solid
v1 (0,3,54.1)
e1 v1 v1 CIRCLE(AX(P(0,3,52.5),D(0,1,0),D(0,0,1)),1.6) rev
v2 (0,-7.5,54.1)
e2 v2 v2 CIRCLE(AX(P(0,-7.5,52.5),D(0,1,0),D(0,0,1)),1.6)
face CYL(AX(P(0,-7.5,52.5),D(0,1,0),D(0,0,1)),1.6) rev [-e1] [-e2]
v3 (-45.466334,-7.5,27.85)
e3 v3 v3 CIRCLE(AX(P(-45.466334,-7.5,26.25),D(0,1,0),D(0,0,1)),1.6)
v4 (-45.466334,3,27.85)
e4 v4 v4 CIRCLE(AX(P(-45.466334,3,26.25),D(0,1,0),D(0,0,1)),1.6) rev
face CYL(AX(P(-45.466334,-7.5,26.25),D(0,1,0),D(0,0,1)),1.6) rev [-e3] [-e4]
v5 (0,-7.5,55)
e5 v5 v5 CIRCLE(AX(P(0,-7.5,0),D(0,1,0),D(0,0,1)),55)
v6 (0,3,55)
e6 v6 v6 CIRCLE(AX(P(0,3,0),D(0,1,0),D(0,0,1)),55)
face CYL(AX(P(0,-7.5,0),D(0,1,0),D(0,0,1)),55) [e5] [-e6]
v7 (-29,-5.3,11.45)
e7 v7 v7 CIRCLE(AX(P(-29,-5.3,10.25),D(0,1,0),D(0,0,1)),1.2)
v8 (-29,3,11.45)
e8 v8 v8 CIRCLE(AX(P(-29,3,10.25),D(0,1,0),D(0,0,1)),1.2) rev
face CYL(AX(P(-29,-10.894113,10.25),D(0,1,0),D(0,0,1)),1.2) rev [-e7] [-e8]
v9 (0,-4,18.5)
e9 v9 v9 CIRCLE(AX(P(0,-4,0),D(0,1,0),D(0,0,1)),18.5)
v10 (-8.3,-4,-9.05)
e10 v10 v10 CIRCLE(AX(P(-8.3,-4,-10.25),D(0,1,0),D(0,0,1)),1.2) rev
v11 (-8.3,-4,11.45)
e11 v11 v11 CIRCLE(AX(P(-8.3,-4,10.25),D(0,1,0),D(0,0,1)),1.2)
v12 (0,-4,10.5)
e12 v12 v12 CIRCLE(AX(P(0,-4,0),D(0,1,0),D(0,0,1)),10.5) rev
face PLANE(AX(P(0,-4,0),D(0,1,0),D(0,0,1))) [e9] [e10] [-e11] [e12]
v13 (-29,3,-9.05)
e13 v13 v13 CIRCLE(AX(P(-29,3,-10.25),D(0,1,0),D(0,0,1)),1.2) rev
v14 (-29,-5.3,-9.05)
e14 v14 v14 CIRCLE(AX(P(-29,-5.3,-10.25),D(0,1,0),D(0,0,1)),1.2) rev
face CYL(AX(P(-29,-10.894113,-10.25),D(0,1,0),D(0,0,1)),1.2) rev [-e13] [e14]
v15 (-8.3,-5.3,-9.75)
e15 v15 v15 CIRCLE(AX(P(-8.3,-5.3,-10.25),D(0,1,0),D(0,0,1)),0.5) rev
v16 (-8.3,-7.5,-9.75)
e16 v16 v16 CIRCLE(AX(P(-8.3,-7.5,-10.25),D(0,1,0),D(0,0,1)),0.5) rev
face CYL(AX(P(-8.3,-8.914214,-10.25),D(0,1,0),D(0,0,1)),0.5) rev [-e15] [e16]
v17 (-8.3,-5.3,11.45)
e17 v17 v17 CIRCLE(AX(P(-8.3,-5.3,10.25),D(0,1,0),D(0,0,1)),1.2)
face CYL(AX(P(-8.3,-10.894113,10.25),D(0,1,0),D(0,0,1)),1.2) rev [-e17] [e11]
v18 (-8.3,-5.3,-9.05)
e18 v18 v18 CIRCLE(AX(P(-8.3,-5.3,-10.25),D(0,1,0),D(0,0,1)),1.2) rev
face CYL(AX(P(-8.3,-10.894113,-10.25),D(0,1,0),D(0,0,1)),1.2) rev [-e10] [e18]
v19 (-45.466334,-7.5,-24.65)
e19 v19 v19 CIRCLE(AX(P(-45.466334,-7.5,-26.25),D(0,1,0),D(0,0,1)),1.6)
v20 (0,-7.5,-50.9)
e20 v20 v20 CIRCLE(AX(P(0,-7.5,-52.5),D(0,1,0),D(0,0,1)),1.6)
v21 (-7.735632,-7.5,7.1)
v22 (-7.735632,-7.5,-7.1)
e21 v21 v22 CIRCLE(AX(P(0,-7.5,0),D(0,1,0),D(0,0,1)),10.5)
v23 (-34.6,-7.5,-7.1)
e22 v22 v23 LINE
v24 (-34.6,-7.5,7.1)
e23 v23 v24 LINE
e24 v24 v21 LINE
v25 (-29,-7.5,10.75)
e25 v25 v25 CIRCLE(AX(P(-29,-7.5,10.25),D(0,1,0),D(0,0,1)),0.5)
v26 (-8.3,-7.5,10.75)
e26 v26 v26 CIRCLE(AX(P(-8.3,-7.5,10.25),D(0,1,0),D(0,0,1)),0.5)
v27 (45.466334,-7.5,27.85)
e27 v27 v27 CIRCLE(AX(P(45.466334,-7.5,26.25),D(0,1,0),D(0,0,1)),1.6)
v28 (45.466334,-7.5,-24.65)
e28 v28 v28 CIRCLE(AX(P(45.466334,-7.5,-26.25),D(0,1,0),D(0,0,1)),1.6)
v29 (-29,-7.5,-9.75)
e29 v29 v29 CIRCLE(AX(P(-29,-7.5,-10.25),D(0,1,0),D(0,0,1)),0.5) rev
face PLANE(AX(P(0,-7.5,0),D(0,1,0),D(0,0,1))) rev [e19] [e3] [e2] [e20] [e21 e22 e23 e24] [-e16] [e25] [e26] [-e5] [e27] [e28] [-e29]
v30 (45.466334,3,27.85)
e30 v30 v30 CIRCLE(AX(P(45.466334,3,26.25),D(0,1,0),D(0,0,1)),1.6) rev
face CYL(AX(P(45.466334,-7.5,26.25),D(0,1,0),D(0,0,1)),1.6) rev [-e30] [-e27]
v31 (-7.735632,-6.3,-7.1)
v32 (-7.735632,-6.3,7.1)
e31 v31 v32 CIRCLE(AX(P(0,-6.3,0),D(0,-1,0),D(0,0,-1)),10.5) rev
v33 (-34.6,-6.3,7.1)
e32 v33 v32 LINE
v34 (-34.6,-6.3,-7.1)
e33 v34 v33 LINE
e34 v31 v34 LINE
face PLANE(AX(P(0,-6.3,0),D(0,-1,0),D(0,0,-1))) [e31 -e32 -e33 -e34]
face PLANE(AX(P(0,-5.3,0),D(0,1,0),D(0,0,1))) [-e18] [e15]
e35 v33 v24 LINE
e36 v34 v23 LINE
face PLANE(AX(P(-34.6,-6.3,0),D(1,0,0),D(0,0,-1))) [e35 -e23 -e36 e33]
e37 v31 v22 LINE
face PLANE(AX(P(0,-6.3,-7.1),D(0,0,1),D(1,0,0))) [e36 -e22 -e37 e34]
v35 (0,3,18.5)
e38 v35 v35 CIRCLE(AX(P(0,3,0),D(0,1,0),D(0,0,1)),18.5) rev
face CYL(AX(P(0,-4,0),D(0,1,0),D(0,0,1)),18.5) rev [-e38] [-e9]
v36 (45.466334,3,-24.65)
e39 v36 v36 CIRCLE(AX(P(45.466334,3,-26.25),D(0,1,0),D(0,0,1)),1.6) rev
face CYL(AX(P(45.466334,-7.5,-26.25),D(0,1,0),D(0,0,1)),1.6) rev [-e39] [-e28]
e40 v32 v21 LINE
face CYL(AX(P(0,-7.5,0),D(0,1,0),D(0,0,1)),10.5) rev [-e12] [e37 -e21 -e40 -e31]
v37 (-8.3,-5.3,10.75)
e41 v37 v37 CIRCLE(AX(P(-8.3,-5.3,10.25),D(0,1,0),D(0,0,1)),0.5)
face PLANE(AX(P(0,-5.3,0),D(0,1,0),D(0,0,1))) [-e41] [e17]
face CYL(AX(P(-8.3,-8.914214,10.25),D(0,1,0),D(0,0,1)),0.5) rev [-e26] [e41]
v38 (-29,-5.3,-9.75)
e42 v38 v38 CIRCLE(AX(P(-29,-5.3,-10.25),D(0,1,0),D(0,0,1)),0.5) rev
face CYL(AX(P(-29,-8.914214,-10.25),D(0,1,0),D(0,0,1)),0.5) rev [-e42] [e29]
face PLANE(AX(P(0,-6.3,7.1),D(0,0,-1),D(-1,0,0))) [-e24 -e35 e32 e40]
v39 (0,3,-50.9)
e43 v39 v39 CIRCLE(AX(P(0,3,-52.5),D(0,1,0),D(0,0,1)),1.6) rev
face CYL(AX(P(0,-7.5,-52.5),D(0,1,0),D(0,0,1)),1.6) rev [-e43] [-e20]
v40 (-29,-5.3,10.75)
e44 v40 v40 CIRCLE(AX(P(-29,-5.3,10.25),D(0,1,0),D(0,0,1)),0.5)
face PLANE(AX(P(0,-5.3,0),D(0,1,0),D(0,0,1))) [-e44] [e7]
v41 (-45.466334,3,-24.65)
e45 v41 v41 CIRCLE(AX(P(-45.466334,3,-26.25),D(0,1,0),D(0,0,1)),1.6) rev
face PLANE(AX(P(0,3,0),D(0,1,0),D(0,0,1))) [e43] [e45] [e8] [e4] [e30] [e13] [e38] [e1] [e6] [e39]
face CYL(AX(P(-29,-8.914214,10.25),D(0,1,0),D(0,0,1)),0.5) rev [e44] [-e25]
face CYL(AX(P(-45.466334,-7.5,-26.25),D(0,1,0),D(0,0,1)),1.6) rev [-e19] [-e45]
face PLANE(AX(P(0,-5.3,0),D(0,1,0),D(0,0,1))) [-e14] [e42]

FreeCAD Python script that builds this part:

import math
import FreeCAD as App
import Part
import Sketcher

doc = App.newDocument("Part")
body = doc.addObject("PartDesign::Body", "Body")

# Sketch on XZ plane
sketch1 = body.newObject("Sketcher::SketchObject", "Sketch")
sketch1.AttachmentSupport = (doc.getObject("XZ_Plane"), [""])
sketch1.MapMode = "FlatFace"
sketch1.addGeometry([
    Part.Circle(App.Vector(0, 0, 0), App.Vector(0, 0, 1), 55),  # 0
    Part.Circle(App.Vector(-45.5, -26.2, 0), App.Vector(0, 0, 1), 1.6),  # 1
    Part.Circle(App.Vector(0, -52.5, 0), App.Vector(0, 0, 1), 1.6),  # 2
    Part.Circle(App.Vector(-45.5, 26.2, 0), App.Vector(0, 0, 1), 1.6),  # 3
    Part.Circle(App.Vector(0, 0, 0), App.Vector(0, 0, 1), 50),  # 4
    Part.Circle(App.Vector(45.5, -26.2, 0), App.Vector(0, 0, 1), 1.6),  # 5
    Part.Circle(App.Vector(0, 52.5, 0), App.Vector(0, 0, 1), 1.6),  # 6
    Part.Circle(App.Vector(45.5, 26.2, 0), App.Vector(0, 0, 1), 1.6),  # 7
], False)
sketch1.addConstraint([
    Sketcher.Constraint("Coincident", 0, 3, -1, 1),
    Sketcher.Constraint("Coincident", 4, 3, -1, 1),
    Sketcher.Constraint("Equal", 1, 2),
    Sketcher.Constraint("Equal", 2, 3),
    Sketcher.Constraint("Equal", 3, 5),
    Sketcher.Constraint("Equal", 5, 6),
    Sketcher.Constraint("Equal", 6, 7),
    Sketcher.Constraint("Symmetric", 3, 3, 5, 3, -1, 1),
    Sketcher.Constraint("Symmetric", 2, 3, 6, 3, -1, 1),
    Sketcher.Constraint("Symmetric", 1, 3, 7, 3, -1, 1),
    Sketcher.Constraint("Symmetric", 1, 3, 5, 3, -2),
    Sketcher.Constraint("PointOnObject", 2, 3, -2),
    Sketcher.Constraint("Diameter", 0, 110.0),
    Sketcher.Constraint("Diameter", 4, 100.0),
    Sketcher.Constraint("Diameter", 1, 3.2),
    Sketcher.Constraint("DistanceY", 2, 3, -1, 1, 52.5),
    Sketcher.Constraint("DistanceY", 1, 3, 3, 3, 52.5),
    Sketcher.Constraint("DistanceX", 1, 3, -1, 1, 45.466334),
])
pad1 = body.newObject("PartDesign::Pad", "Pad")
pad1.Profile = sketch1
pad1.Length = 7.5

# Sketch on XZ plane
sketch2 = body.newObject("Sketcher::SketchObject", "Sketch001")
sketch2.AttachmentSupport = (doc.getObject("XZ_Plane"), [""])
sketch2.MapMode = "FlatFace"
sketch2.addGeometry([
    Part.Circle(App.Vector(0, 0, 0), App.Vector(0, 0, 1), 50),
    Part.Circle(App.Vector(0, 0, 0), App.Vector(0, 0, 1), 10),
], False)
sketch2.addConstraint([
    Sketcher.Constraint("Coincident", 0, 3, -1, 1),
    Sketcher.Constraint("Coincident", 1, 3, -1, 1),
    Sketcher.Constraint("Diameter", 0, 100.0),
    Sketcher.Constraint("Diameter", 1, 21.0),
])
pad2 = body.newObject("PartDesign::Pad", "Pad001")
pad2.Profile = sketch2
pad2.Length = 7.5

# Sketch on XZ plane
sketch3 = body.newObject("Sketcher::SketchObject", "Sketch002")
sketch3.AttachmentSupport = (doc.getObject("XZ_Plane"), [""])
sketch3.MapMode = "FlatFace"
sketch3.addGeometry([
    Part.Circle(App.Vector(-29, -10.2, 0), App.Vector(0, 0, 1), 0.5),
    Part.Circle(App.Vector(-8.3, -10.2, 0), App.Vector(0, 0, 1), 0.5),
    Part.Circle(App.Vector(-8.3, 10.2, 0), App.Vector(0, 0, 1), 0.5),
    Part.Circle(App.Vector(-29, 10.2, 0), App.Vector(0, 0, 1), 0.5),
], False)
sketch3.addConstraint([
    Sketcher.Constraint("Equal", 0, 1),
    Sketcher.Constraint("Equal", 1, 2),
    Sketcher.Constraint("Equal", 2, 3),
    Sketcher.Constraint("Symmetric", 1, 3, 2, 3, -1),
    Sketcher.Constraint("Symmetric", 0, 3, 3, 3, -1),
    Sketcher.Constraint("Horizontal", 0, 3, 1, 3),
    Sketcher.Constraint("Diameter", 0, 1.0),
    Sketcher.Constraint("DistanceX", 0, 3, -1, 1, 29.0),
    Sketcher.Constraint("DistanceX", 1, 3, -1, 1, 8.3),
    Sketcher.Constraint("DistanceY", 1, 3, 2, 3, 20.5),
])
pocket1 = body.newObject("PartDesign::Pocket", "Pocket")
pocket1.Profile = sketch3
pocket1.Length = 7.5
pocket1.Reversed = True

# Sketch on XZ plane
sketch4 = body.newObject("Sketcher::SketchObject", "Sketch003")
sketch4.AttachmentSupport = (doc.getObject("XZ_Plane"), [""])
sketch4.MapMode = "FlatFace"
sketch4.addGeometry([
    Part.Circle(App.Vector(-29, -10.2, 0), App.Vector(0, 0, 1), 1.2),  # 0
    Part.Circle(App.Vector(-29, -10.2, 0), App.Vector(0, 0, 1), 0.5),  # 1
    Part.Circle(App.Vector(-8.3, -10.2, 0), App.Vector(0, 0, 1), 1.2),  # 2
    Part.Circle(App.Vector(-8.3, -10.2, 0), App.Vector(0, 0, 1), 0.5),  # 3
    Part.Circle(App.Vector(-8.3, 10.2, 0), App.Vector(0, 0, 1), 1.2),  # 4
    Part.Circle(App.Vector(-8.3, 10.2, 0), App.Vector(0, 0, 1), 0.5),  # 5
    Part.Circle(App.Vector(-29, 10.2, 0), App.Vector(0, 0, 1), 1.2),  # 6
    Part.Circle(App.Vector(-29, 10.2, 0), App.Vector(0, 0, 1), 0.5),  # 7
], False)
sketch4.addConstraint([
    Sketcher.Constraint("Coincident", 1, 3, 0, 3),
    Sketcher.Constraint("Coincident", 3, 3, 2, 3),
    Sketcher.Constraint("Coincident", 5, 3, 4, 3),
    Sketcher.Constraint("Coincident", 7, 3, 6, 3),
    Sketcher.Constraint("Equal", 0, 2),
    Sketcher.Constraint("Equal", 1, 3),
    Sketcher.Constraint("Equal", 2, 4),
    Sketcher.Constraint("Equal", 3, 5),
    Sketcher.Constraint("Equal", 4, 6),
    Sketcher.Constraint("Equal", 5, 7),
    Sketcher.Constraint("Symmetric", 2, 3, 4, 3, -1),
    Sketcher.Constraint("Symmetric", 0, 3, 6, 3, -1),
    Sketcher.Constraint("Horizontal", 1, 3, 2, 3),
    Sketcher.Constraint("Diameter", 1, 1.0),
    Sketcher.Constraint("Diameter", 0, 2.4),
    Sketcher.Constraint("DistanceX", 0, 3, -1, 1, 29.0),
    Sketcher.Constraint("DistanceX", 2, 3, -1, 1, 8.3),
    Sketcher.Constraint("DistanceY", 2, 3, 4, 3, 20.5),
])
pocket2 = body.newObject("PartDesign::Pocket", "Pocket001")
pocket2.Profile = sketch4
pocket2.Length = 5.3
pocket2.Reversed = True

# Sketch on XZ plane
sketch5 = body.newObject("Sketcher::SketchObject", "Sketch004")
sketch5.AttachmentSupport = (doc.getObject("XZ_Plane"), [""])
sketch5.MapMode = "FlatFace"
sketch5.AttachmentOffset = App.Placement(App.Vector(0, 0, 6.3), App.Rotation())
sketch5.addGeometry([
    Part.ArcOfCircle(Part.Circle(App.Vector(0, 0, 0), App.Vector(0, 0, 1), 11), math.radians(137), math.radians(180)),  # 0
    Part.LineSegment(App.Vector(-8, 7, 0), App.Vector(-35, 7, 0)),  # 1
    Part.LineSegment(App.Vector(-35, 7, 0), App.Vector(-35, -7, 0)),  # 2
    Part.LineSegment(App.Vector(-35, -7, 0), App.Vector(-8, -7, 0)),  # 3
    Part.ArcOfCircle(Part.Circle(App.Vector(0, 0, 0), App.Vector(0, 0, 1), 11), math.radians(-180), math.radians(-137)),  # 4
], False)
sketch5.addConstraint([
    Sketcher.Constraint("Coincident", 0, 1, 1, 1),
    Sketcher.Constraint("Coincident", 1, 2, 2, 1),
    Sketcher.Constraint("Coincident", 2, 2, 3, 1),
    Sketcher.Constraint("Coincident", 3, 2, 4, 2),
    Sketcher.Constraint("Tangent", 4, 1, 0, 2),
    Sketcher.Constraint("Horizontal", 1),
    Sketcher.Constraint("Vertical", 2),
    Sketcher.Constraint("Horizontal", 3),
    Sketcher.Constraint("Coincident", 0, 3, -1, 1),
    Sketcher.Constraint("Equal", 0, 4),
    Sketcher.Constraint("PointOnObject", 4, 1, -1),
    Sketcher.Constraint("Vertical", 0, 1, 3, 2),
    Sketcher.Constraint("Radius", 0, 10.5),
    Sketcher.Constraint("DistanceY", 2, 2, 2, 1, 14.2),
    Sketcher.Constraint("DistanceX", 1, 2, -1, 1, 34.6),
])
pocket3 = body.newObject("PartDesign::Pocket", "Pocket002")
pocket3.Profile = sketch5
pocket3.Length = 1.2
pocket3.Reversed = True

# Sketch on XZ plane
sketch6 = body.newObject("Sketcher::SketchObject", "Sketch005")
sketch6.AttachmentSupport = (doc.getObject("XZ_Plane"), [""])
sketch6.MapMode = "FlatFace"
sketch6.addGeometry(Part.Circle(App.Vector(0, 0, 0), App.Vector(0, 0, 1), 18), False)
sketch6.addConstraint([
    Sketcher.Constraint("Coincident", 0, 3, -1, 1),
    Sketcher.Constraint("Diameter", 0, 37.0),
])
pocket4 = body.newObject("PartDesign::Pocket", "Pocket003")
pocket4.Profile = sketch6
pocket4.Length = 4
pocket4.Reversed = True

# Sketch on XZ plane
sketch7 = body.newObject("Sketcher::SketchObject", "Sketch006")
sketch7.AttachmentSupport = (doc.getObject("XZ_Plane"), [""])
sketch7.MapMode = "FlatFace"
sketch7.AttachmentOffset = App.Placement(App.Vector(0, 0, -3), App.Rotation())
sketch7.addGeometry([
    Part.Circle(App.Vector(0, 0, 0), App.Vector(0, 0, 1), 55),  # 0
    Part.Circle(App.Vector(-45.5, -26.2, 0), App.Vector(0, 0, 1), 1.6),  # 1
    Part.Circle(App.Vector(-29, -10.2, 0), App.Vector(0, 0, 1), 1.2),  # 2
    Part.Circle(App.Vector(0, -52.5, 0), App.Vector(0, 0, 1), 1.6),  # 3
    Part.Circle(App.Vector(-45.5, 26.2, 0), App.Vector(0, 0, 1), 1.6),  # 4
    Part.Circle(App.Vector(-29, 10.2, 0), App.Vector(0, 0, 1), 1.2),  # 5
    Part.Circle(App.Vector(45.5, -26.2, 0), App.Vector(0, 0, 1), 1.6),  # 6
    Part.Circle(App.Vector(0, 0, 0), App.Vector(0, 0, 1), 18.5),  # 7
    Part.Circle(App.Vector(0, 52.5, 0), App.Vector(0, 0, 1), 1.6),  # 8
    Part.Circle(App.Vector(45.5, 26.2, 0), App.Vector(0, 0, 1), 1.6),  # 9
], False)
sketch7.addConstraint([
    Sketcher.Constraint("Coincident", 0, 3, -1, 1),
    Sketcher.Constraint("Coincident", 7, 3, -1, 1),
    Sketcher.Constraint("Equal", 1, 3),
    Sketcher.Constraint("Equal", 3, 4),
    Sketcher.Constraint("Equal", 2, 5),
    Sketcher.Constraint("Equal", 4, 6),
    Sketcher.Constraint("Equal", 6, 8),
    Sketcher.Constraint("Equal", 8, 9),
    Sketcher.Constraint("Symmetric", 4, 3, 6, 3, -1, 1),
    Sketcher.Constraint("Symmetric", 3, 3, 8, 3, -1, 1),
    Sketcher.Constraint("Symmetric", 1, 3, 9, 3, -1, 1),
    Sketcher.Constraint("Symmetric", 1, 3, 6, 3, -2),
    Sketcher.Constraint("Symmetric", 2, 3, 5, 3, -1),
    Sketcher.Constraint("PointOnObject", 3, 3, -2),
    Sketcher.Constraint("Diameter", 0, 110.0),
    Sketcher.Constraint("Diameter", 7, 37.0),
    Sketcher.Constraint("Diameter", 1, 3.2),
    Sketcher.Constraint("Diameter", 2, 2.4),
    Sketcher.Constraint("DistanceX", 2, 3, -1, 1, 29.0),
    Sketcher.Constraint("DistanceY", 1, 3, 2, 3, 16.0),
    Sketcher.Constraint("DistanceY", 3, 3, -1, 1, 52.5),
    Sketcher.Constraint("DistanceY", 2, 3, 4, 3, 36.5),
    Sketcher.Constraint("DistanceX", 1, 3, -1, 1, 45.466334),
])
pad3 = body.newObject("PartDesign::Pad", "Pad002")
pad3.Profile = sketch7
pad3.Length = 3

doc.recompute()
